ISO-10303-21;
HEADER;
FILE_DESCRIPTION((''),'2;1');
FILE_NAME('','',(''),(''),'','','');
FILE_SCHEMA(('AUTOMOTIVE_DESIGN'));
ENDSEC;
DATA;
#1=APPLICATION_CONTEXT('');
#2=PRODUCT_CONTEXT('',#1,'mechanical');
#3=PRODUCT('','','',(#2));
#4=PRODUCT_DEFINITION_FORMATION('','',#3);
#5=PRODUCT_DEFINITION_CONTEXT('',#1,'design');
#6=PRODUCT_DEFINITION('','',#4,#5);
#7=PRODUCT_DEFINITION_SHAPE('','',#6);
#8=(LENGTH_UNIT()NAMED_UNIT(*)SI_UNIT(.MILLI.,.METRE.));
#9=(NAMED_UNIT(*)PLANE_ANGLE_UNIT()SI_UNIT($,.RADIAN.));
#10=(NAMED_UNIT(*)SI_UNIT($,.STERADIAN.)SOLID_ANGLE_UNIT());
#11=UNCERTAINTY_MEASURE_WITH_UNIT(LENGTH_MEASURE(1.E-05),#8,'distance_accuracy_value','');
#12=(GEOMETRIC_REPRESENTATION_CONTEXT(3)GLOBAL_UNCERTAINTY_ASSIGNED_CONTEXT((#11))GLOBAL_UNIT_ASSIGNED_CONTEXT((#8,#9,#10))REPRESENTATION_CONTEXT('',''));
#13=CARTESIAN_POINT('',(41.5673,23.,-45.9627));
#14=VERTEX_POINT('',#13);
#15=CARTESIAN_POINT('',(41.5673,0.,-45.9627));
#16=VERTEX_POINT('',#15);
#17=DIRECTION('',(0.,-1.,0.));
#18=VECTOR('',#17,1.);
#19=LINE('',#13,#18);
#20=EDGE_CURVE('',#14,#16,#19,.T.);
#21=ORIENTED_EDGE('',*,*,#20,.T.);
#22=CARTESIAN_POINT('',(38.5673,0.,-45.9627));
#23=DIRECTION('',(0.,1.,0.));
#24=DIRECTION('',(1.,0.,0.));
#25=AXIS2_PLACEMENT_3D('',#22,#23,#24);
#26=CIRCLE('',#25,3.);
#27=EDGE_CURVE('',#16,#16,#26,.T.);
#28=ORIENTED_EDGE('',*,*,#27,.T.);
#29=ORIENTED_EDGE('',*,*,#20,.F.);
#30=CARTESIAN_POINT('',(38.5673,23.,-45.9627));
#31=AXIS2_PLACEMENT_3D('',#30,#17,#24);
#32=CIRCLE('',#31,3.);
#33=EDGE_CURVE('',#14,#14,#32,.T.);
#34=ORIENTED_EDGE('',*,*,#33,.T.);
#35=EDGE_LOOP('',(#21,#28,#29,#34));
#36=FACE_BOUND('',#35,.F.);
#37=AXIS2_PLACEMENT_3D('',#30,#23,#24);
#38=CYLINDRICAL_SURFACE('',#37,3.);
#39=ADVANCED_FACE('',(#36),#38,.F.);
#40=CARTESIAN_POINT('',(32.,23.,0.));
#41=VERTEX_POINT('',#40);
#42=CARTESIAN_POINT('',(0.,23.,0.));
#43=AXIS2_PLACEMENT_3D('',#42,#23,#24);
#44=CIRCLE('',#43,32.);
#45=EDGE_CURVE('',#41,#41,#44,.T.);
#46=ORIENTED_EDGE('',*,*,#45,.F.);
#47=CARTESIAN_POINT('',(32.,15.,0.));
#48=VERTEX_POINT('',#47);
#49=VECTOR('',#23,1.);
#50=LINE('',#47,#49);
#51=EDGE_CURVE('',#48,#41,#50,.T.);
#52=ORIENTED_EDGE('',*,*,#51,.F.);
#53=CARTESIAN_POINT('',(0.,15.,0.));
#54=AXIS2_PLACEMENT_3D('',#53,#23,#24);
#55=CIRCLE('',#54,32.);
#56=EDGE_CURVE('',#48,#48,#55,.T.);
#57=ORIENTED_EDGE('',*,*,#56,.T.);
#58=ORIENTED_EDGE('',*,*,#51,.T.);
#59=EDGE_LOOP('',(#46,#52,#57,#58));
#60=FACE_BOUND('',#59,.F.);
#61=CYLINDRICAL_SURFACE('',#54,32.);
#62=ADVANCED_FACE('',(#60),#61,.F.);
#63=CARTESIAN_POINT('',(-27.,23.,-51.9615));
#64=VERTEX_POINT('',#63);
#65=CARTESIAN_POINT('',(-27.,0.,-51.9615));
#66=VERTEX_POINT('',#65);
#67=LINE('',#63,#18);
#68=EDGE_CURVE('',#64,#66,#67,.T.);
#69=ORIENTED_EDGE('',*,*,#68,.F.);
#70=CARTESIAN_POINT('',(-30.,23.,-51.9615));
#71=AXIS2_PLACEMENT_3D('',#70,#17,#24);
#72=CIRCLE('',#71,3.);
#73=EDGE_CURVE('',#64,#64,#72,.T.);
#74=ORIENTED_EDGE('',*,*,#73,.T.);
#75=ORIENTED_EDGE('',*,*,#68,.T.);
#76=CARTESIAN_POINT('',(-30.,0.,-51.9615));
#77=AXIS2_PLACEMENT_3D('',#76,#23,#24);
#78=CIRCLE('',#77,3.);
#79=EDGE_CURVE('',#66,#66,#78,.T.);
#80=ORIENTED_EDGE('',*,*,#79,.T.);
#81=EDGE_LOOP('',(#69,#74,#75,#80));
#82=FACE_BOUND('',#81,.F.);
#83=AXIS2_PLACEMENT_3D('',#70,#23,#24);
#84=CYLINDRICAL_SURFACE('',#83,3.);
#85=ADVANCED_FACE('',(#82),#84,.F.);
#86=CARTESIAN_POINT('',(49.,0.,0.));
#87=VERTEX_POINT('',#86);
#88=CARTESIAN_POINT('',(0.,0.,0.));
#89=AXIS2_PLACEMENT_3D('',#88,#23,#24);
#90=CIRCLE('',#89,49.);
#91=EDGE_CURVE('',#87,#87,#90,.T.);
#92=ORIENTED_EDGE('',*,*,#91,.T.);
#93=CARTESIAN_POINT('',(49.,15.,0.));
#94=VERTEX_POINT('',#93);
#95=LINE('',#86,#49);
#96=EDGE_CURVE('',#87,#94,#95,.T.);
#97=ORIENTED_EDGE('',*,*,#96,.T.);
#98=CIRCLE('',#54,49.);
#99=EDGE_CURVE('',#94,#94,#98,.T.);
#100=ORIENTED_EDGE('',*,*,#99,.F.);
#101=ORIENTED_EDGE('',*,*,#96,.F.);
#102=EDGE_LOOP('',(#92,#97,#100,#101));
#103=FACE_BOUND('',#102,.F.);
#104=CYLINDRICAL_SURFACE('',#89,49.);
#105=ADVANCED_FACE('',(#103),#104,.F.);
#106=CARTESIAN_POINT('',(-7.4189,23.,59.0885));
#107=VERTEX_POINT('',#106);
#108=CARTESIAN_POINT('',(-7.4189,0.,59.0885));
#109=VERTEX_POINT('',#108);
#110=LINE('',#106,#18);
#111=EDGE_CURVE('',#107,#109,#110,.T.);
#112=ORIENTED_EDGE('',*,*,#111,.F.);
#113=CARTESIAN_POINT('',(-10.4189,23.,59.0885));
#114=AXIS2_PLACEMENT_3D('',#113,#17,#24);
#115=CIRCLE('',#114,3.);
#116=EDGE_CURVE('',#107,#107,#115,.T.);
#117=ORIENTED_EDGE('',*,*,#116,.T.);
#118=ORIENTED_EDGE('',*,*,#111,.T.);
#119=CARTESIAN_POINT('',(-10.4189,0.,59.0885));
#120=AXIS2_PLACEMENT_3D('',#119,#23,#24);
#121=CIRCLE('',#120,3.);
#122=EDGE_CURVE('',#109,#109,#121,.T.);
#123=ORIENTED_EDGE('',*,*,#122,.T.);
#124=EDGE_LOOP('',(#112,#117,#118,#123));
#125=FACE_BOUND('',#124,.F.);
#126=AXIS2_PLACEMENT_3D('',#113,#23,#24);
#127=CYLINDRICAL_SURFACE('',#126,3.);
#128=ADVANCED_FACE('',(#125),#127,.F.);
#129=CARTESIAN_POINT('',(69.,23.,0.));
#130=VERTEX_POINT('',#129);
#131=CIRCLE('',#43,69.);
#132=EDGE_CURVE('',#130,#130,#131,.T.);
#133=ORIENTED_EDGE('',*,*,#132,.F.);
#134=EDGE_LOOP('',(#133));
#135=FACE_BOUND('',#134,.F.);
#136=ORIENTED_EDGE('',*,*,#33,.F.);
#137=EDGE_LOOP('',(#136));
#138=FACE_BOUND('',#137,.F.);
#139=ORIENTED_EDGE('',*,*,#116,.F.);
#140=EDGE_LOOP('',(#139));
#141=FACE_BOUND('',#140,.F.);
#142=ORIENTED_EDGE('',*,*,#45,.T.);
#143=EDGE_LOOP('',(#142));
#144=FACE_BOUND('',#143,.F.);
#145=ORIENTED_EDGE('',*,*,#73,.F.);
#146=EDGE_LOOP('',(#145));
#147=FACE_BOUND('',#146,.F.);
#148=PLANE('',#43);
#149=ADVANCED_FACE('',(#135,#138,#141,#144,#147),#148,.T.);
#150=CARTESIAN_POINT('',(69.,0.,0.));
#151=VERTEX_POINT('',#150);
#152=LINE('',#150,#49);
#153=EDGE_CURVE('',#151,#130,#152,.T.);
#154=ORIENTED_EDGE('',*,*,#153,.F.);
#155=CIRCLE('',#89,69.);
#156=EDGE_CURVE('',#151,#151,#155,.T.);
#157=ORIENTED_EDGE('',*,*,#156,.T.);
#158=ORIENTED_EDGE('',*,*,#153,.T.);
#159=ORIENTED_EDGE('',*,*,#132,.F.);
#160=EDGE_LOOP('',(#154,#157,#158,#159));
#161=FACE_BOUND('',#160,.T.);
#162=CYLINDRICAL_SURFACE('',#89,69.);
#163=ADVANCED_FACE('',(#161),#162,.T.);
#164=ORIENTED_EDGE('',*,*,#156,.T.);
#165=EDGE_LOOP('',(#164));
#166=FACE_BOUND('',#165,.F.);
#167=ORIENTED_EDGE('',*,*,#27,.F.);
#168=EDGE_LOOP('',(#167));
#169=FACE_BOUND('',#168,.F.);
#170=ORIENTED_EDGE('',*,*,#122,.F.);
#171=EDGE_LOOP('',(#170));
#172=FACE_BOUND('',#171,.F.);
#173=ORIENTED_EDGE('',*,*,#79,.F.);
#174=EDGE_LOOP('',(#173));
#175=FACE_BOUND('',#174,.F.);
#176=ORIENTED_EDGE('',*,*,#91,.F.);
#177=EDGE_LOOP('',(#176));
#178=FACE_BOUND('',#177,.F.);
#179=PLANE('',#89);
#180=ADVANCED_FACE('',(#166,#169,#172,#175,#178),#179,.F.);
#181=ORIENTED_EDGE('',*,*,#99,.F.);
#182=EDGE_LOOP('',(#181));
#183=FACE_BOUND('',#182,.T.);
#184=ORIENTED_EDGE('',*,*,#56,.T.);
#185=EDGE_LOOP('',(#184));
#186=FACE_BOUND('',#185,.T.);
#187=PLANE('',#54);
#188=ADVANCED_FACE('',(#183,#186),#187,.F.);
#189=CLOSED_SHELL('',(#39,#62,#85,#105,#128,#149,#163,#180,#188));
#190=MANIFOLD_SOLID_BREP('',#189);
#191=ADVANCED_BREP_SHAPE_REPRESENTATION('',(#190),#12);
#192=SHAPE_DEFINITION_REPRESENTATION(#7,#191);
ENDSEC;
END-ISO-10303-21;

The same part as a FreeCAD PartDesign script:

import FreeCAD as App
import Part
import Sketcher

V = App.Vector

doc = App.newDocument("Part")
body = doc.addObject("PartDesign::Body", "Body")

sketch1 = doc.addObject("Sketcher::SketchObject", "Sketch")
body.addObject(sketch1)
sketch1.AttachmentSupport = (doc.XY_Plane, [""])
sketch1.MapMode = "FlatFace"
sketch1.addGeometry(Part.LineSegment(V(49, 0, 0), V(69, 0, 0)), False)
sketch1.addGeometry(Part.LineSegment(V(69, 0, 0), V(69, 23, 0)), False)
sketch1.addGeometry(Part.LineSegment(V(69, 23, 0), V(32, 23, 0)), False)
sketch1.addGeometry(Part.LineSegment(V(32, 23, 0), V(32, 15, 0)), False)
sketch1.addGeometry(Part.LineSegment(V(32, 15, 0), V(49, 15, 0)), False)
sketch1.addGeometry(Part.LineSegment(V(49, 15, 0), V(49, 0, 0)), False)
sketch1.addConstraint(Sketcher.Constraint("Coincident", 0, 2, 1, 1))
sketch1.addConstraint(Sketcher.Constraint("Coincident", 1, 2, 2, 1))
sketch1.addConstraint(Sketcher.Constraint("Coincident", 2, 2, 3, 1))
sketch1.addConstraint(Sketcher.Constraint("Coincident", 3, 2, 4, 1))
sketch1.addConstraint(Sketcher.Constraint("Coincident", 4, 2, 5, 1))
sketch1.addConstraint(Sketcher.Constraint("Coincident", 5, 2, 0, 1))
sketch1.addConstraint(Sketcher.Constraint("Horizontal", 0))
sketch1.addConstraint(Sketcher.Constraint("Vertical", 1))
sketch1.addConstraint(Sketcher.Constraint("Horizontal", 2))
sketch1.addConstraint(Sketcher.Constraint("Vertical", 3))
sketch1.addConstraint(Sketcher.Constraint("Horizontal", 4))
sketch1.addConstraint(Sketcher.Constraint("Vertical", 5))
sketch1.addConstraint(Sketcher.Constraint("PointOnObject", 0, 2, -1))
sketch1.addConstraint(Sketcher.Constraint("DistanceX", 0, 1, 0, 2, 20.0))
sketch1.addConstraint(Sketcher.Constraint("DistanceX", 4, 1, 4, 2, 17.0))
sketch1.addConstraint(Sketcher.Constraint("DistanceY", 3, 2, 3, 1, 8.0))
sketch1.addConstraint(Sketcher.Constraint("DistanceY", 5, 2, 5, 1, 15.0))
sketch1.addConstraint(Sketcher.Constraint("DistanceX", -1, 1, 2, 2, 32.0))
revolution = doc.addObject("PartDesign::Revolution", "Revolution")
body.addObject(revolution)
revolution.Profile = sketch1
revolution.ReferenceAxis = (sketch1, ["V_Axis"])
revolution.Angle = 360

sketch2 = doc.addObject("Sketcher::SketchObject", "Sketch001")
body.addObject(sketch2)
sketch2.AttachmentSupport = (doc.XZ_Plane, [""])
sketch2.MapMode = "FlatFace"
sketch2.AttachmentOffset = App.Placement(V(0, 0, -23), App.Rotation())
sketch2.addGeometry(Part.Circle(V(-10.4189, 59.0885, 0), V(0, 0, 1), 3), False)
sketch2.addGeometry(Part.Circle(V(-30, -51.9615, 0), V(0, 0, 1), 3), False)
sketch2.addGeometry(Part.Circle(V(38.5673, -45.9627, 0), V(0, 0, 1), 3), False)
sketch2.addConstraint(Sketcher.Constraint("Equal", 0, 1))
sketch2.addConstraint(Sketcher.Constraint("Equal", 1, 2))
sketch2.addConstraint(Sketcher.Constraint("Diameter", 0, 6.0))
sketch2.addConstraint(Sketcher.Constraint("DistanceX", 1, 3, -1, 1, 30.0))
sketch2.addConstraint(Sketcher.Constraint("DistanceY", 1, 3, 0, 3, 111.05))
sketch2.addConstraint(Sketcher.Constraint("DistanceX", 0, 3, -1, 1, 10.419))
sketch2.addConstraint(Sketcher.Constraint("DistanceY", -1, 1, 0, 3, 59.0885))
sketch2.addConstraint(Sketcher.Constraint("DistanceX", -1, 1, 2, 3, 38.5673))
sketch2.addConstraint(Sketcher.Constraint("DistanceY", 2, 3, -1, 1, 45.9627))
pocket1 = doc.addObject("PartDesign::Pocket", "Pocket")
body.addObject(pocket1)
pocket1.Profile = sketch2
pocket1.Type = "ThroughAll"
pocket1.Reversed = True

doc.recompute()
